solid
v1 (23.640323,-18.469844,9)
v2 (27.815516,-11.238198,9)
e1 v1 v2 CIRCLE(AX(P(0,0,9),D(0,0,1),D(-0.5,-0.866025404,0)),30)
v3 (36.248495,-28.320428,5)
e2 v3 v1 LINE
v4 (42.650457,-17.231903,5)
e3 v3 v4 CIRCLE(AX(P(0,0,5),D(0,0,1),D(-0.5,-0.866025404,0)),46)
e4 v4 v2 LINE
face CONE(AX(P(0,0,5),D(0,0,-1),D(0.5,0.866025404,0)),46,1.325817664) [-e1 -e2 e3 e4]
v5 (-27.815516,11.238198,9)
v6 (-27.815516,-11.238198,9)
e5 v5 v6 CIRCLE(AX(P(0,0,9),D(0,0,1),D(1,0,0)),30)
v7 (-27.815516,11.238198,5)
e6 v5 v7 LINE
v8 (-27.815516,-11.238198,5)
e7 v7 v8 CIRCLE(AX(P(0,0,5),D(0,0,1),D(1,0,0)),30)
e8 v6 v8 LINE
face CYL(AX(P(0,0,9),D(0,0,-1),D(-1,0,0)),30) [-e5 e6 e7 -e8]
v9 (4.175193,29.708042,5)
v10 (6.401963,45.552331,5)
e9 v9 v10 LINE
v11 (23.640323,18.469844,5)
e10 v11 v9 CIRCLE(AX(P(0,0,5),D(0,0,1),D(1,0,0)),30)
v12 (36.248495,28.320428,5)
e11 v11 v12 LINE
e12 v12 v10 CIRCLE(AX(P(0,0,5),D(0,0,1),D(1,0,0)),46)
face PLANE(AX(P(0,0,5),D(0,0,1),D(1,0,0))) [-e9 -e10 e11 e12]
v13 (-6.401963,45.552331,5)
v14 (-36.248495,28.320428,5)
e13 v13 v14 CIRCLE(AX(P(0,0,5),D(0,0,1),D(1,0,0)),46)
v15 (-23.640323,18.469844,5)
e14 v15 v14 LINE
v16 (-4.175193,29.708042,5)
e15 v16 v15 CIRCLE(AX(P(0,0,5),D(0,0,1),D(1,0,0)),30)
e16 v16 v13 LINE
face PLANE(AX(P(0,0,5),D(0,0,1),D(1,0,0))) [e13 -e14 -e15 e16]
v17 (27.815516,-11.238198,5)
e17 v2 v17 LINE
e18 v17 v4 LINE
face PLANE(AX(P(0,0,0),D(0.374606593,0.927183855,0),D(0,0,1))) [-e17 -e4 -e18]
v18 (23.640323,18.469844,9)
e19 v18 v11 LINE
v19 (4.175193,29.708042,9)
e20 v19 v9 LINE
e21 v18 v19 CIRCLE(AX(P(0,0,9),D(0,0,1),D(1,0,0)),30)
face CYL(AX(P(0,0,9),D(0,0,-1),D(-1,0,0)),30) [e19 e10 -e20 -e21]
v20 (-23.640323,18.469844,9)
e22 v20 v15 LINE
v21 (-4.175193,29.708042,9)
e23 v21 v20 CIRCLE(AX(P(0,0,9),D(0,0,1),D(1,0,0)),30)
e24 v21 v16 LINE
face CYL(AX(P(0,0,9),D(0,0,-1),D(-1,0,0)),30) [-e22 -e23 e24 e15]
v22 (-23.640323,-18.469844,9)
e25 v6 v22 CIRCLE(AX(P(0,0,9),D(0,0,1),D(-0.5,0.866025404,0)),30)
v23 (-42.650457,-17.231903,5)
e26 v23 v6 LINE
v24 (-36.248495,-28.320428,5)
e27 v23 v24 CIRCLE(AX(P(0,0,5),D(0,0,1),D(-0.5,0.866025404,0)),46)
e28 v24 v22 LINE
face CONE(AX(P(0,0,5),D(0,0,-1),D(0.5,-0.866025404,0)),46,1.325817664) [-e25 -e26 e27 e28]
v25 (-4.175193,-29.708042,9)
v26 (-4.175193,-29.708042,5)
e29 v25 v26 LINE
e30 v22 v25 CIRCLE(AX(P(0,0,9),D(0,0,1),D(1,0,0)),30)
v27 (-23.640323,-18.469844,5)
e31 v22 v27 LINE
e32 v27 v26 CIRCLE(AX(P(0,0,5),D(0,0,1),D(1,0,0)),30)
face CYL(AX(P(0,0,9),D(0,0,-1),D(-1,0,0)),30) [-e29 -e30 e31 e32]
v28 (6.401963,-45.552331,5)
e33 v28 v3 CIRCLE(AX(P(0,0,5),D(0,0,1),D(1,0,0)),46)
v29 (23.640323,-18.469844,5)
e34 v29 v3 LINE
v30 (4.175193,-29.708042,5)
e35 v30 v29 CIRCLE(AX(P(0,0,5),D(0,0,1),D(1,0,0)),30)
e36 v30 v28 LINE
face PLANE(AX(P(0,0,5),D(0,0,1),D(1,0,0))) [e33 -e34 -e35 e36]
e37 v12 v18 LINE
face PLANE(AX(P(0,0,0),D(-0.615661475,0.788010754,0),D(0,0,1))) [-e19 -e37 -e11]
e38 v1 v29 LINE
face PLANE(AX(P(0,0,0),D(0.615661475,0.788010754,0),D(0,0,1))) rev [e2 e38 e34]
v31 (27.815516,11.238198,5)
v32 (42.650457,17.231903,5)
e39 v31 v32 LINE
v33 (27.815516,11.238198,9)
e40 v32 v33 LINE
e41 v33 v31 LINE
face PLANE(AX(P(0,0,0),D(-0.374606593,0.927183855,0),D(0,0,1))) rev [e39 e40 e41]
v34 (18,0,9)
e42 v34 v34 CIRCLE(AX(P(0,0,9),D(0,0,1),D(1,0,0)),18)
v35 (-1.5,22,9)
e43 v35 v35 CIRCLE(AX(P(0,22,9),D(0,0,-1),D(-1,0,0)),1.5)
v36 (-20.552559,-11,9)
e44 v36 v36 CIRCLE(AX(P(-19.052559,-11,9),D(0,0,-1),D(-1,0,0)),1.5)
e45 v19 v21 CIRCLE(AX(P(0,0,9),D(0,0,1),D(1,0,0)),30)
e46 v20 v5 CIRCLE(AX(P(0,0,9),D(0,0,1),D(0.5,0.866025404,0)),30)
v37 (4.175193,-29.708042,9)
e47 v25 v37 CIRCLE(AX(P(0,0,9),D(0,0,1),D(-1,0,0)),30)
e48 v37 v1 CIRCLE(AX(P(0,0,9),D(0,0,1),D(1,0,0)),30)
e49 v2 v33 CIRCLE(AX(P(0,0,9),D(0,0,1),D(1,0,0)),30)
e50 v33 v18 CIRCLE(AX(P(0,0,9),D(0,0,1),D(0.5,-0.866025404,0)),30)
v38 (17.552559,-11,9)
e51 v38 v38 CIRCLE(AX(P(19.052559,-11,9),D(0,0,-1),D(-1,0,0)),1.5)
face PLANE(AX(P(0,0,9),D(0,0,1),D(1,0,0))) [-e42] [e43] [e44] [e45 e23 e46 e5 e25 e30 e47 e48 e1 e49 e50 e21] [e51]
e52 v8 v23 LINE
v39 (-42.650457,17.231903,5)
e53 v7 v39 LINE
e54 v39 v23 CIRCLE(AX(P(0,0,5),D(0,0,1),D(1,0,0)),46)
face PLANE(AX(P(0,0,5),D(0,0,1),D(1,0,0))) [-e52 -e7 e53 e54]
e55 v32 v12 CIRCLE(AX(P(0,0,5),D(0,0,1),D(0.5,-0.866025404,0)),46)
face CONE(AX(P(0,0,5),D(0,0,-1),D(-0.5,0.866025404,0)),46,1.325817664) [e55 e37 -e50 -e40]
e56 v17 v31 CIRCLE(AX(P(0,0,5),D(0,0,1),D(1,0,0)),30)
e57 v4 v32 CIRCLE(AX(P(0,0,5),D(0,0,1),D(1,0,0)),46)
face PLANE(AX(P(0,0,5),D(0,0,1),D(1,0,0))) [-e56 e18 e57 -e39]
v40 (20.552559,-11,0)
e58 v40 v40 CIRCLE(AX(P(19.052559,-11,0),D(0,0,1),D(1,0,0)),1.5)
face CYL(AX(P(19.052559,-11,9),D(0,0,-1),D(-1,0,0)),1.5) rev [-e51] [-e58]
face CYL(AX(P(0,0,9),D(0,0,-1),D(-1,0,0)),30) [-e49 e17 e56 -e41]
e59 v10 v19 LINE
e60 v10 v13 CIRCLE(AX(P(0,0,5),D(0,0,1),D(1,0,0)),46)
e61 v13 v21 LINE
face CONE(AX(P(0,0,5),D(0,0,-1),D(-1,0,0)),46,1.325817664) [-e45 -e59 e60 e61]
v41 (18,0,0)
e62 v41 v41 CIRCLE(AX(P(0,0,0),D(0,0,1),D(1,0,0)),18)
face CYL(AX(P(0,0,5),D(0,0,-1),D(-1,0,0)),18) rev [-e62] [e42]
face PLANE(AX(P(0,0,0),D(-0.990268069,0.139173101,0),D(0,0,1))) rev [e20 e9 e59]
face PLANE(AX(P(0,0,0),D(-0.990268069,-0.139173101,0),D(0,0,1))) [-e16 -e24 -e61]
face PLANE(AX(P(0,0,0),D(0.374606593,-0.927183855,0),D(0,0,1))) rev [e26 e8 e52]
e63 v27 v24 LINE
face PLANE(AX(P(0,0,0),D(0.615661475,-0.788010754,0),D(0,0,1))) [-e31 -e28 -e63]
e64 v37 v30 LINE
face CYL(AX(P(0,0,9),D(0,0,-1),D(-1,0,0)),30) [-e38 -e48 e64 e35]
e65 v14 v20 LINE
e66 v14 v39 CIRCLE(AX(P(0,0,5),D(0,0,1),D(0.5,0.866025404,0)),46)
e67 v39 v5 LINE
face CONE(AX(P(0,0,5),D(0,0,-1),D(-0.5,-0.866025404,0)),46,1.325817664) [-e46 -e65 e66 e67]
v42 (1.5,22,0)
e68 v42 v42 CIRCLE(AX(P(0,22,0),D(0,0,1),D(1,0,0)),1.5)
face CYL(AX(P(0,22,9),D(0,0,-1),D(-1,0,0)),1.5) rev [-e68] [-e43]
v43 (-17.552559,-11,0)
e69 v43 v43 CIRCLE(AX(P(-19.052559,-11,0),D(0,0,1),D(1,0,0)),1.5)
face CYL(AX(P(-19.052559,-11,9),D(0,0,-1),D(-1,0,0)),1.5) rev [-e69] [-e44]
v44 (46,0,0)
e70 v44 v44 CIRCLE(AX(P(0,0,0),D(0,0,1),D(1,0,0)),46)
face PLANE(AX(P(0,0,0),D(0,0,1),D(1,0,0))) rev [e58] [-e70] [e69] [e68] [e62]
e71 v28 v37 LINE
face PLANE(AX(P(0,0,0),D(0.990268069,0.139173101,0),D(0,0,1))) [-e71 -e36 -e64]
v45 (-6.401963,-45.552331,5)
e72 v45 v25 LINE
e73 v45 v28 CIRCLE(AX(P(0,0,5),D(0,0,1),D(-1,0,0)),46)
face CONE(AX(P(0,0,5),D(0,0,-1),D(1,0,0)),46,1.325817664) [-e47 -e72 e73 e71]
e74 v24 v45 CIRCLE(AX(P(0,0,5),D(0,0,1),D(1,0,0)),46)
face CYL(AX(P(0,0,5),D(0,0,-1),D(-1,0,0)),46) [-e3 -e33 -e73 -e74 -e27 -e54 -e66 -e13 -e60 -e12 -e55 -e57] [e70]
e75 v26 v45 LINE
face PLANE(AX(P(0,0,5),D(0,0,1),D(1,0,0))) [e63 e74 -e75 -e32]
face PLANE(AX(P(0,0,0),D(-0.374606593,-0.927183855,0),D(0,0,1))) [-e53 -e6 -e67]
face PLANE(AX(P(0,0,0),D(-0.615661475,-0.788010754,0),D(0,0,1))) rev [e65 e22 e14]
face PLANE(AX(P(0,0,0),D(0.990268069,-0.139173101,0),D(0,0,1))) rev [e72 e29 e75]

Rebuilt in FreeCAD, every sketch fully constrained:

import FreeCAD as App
import Part
import Sketcher

V = App.Vector
Q = App.Units.Quantity

doc = App.newDocument("Part")
body = doc.addObject("PartDesign::Body", "Body")

sketch1 = body.newObject("Sketcher::SketchObject", "Sketch")
sketch1.AttachmentSupport = (doc.getObject("XY_Plane"), [""])
sketch1.MapMode = "FlatFace"
sketch1.addGeometry([
    Part.Circle(V(0, 0, 0), V(0, 0, 1), 46),
    Part.Circle(V(0, 0, 0), V(0, 0, 1), 18),
], False)
sketch1.addConstraint([
    Sketcher.Constraint("Coincident", 0, 3, -1, 1),
    Sketcher.Constraint("Coincident", 1, 3, -1, 1),
    Sketcher.Constraint("Diameter", 0, Q("92 mm")),
    Sketcher.Constraint("Diameter", 1, Q("36 mm")),
])
pad1 = body.newObject("PartDesign::Pad", "Pad")
pad1.Profile = sketch1
pad1.Length = 5

sketch2 = body.newObject("Sketcher::SketchObject", "Sketch001")
sketch2.AttachmentSupport = (doc.getObject("XY_Plane"), [""])
sketch2.MapMode = "FlatFace"
sketch2.AttachmentOffset = App.Placement(V(0, 0, 5), App.Rotation())
sketch2.addGeometry([
    Part.Circle(V(0, 0, 0), V(0, 0, 1), 30),
    Part.Circle(V(0, 0, 0), V(0, 0, 1), 18),
], False)
sketch2.addConstraint([
    Sketcher.Constraint("Coincident", 0, 3, -1, 1),
    Sketcher.Constraint("Coincident", 1, 3, -1, 1),
    Sketcher.Constraint("Diameter", 0, Q("60 mm")),
    Sketcher.Constraint("Diameter", 1, Q("36 mm")),
])
pad2 = body.newObject("PartDesign::Pad", "Pad001")
pad2.Profile = sketch2
pad2.Length = 4

sketch3 = body.newObject("Sketcher::SketchObject", "Sketch002")
sketch3.AttachmentSupport = (doc.getObject("XY_Plane"), [""])
sketch3.MapMode = "FlatFace"
sketch3.addGeometry([
    Part.Circle(V(0, 22, 0), V(0, 0, 1), 1.5),
    Part.Circle(V(-19.052559, -11, 0), V(0, 0, 1), 1.5),
    Part.Circle(V(19.052559, -11, 0), V(0, 0, 1), 1.5),
], False)
sketch3.addConstraint([
    Sketcher.Constraint("Equal", 0, 1),
    Sketcher.Constraint("Equal", 1, 2),
    Sketcher.Constraint("Symmetric", 1, 3, 2, 3, -2),
    Sketcher.Constraint("PointOnObject", 0, 3, -2),
    Sketcher.Constraint("Diameter", 0, Q("3 mm")),
    Sketcher.Constraint("DistanceY", -1, 1, 0, 3, Q("22 mm")),
    Sketcher.Constraint("DistanceY", 1, 3, -1, 1, Q("11 mm")),
    Sketcher.Constraint("DistanceX", 1, 3, -1, 1, Q("19.052559 mm")),
])
pocket1 = body.newObject("PartDesign::Pocket", "Pocket")
pocket1.Profile = sketch3
pocket1.Type = "ThroughAll"
pocket1.Midplane = True

sketch4 = body.newObject("Sketcher::SketchObject", "Sketch003")
sketch4.AttachmentSupport = (doc.getObject("YZ_Plane"), [""])
sketch4.MapMode = "FlatFace"
sketch4.addGeometry([
    Part.LineSegment(V(30, 9, 0), V(30, 5, 0)),
    Part.LineSegment(V(30, 5, 0), V(46, 5, 0)),
    Part.LineSegment(V(46, 5, 0), V(30, 9, 0)),
], False)
sketch4.addConstraint([
    Sketcher.Constraint("Coincident", 0, 2, 1, 1),
    Sketcher.Constraint("Coincident", 1, 2, 2, 1),
    Sketcher.Constraint("Coincident", 2, 2, 0, 1),
    Sketcher.Constraint("Vertical", 0),
    Sketcher.Constraint("Horizontal", 1),
    Sketcher.Constraint("DistanceX", 1, 1, 1, 2, Q("16 mm")),
    Sketcher.Constraint("DistanceY", 0, 2, 0, 1, Q("4 mm")),
    Sketcher.Constraint("DistanceX", -1, 1, 0, 2, Q("30 mm")),
    Sketcher.Constraint("DistanceY", -1, 1, 0, 2, Q("5 mm")),
])
revolution = body.newObject("PartDesign::Revolution", "Revolution")
revolution.Profile = sketch4
revolution.ReferenceAxis = (sketch4, ["V_Axis"])
revolution.Angle = 8
revolution.Reversed = True

sketch5 = body.newObject("Sketcher::SketchObject", "Sketch004")
sketch5.AttachmentSupport = (doc.getObject("YZ_Plane"), [""])
sketch5.MapMode = "FlatFace"
sketch5.addGeometry([
    Part.LineSegment(V(30, 9, 0), V(30, 5, 0)),
    Part.LineSegment(V(30, 5, 0), V(46, 5, 0)),
    Part.LineSegment(V(46, 5, 0), V(30, 9, 0)),
], False)
sketch5.addConstraint([
    Sketcher.Constraint("Coincident", 0, 2, 1, 1),
    Sketcher.Constraint("Coincident", 1, 2, 2, 1),
    Sketcher.Constraint("Coincident", 2, 2, 0, 1),
    Sketcher.Constraint("Vertical", 0),
    Sketcher.Constraint("Horizontal", 1),
    Sketcher.Constraint("DistanceX", 1, 1, 1, 2, Q("16 mm")),
    Sketcher.Constraint("DistanceY", 0, 2, 0, 1, Q("4 mm")),
    Sketcher.Constraint("DistanceX", -1, 1, 0, 2, Q("30 mm")),
    Sketcher.Constraint("DistanceY", -1, 1, 0, 2, Q("5 mm")),
])
revolution2 = body.newObject("PartDesign::Revolution", "Revolution001")
revolution2.Profile = sketch5
revolution2.ReferenceAxis = (sketch5, ["V_Axis"])
revolution2.Angle = 8
doc.recompute()

polarpattern = body.newObject("PartDesign::PolarPattern", "PolarPattern")
polarpattern.Originals = [revolution, revolution2]
polarpattern.Axis = (doc.getObject("Z_Axis"), [""])
polarpattern.Angle = 360
polarpattern.Occurrences = 6
body.Tip = polarpattern

doc.recompute()
